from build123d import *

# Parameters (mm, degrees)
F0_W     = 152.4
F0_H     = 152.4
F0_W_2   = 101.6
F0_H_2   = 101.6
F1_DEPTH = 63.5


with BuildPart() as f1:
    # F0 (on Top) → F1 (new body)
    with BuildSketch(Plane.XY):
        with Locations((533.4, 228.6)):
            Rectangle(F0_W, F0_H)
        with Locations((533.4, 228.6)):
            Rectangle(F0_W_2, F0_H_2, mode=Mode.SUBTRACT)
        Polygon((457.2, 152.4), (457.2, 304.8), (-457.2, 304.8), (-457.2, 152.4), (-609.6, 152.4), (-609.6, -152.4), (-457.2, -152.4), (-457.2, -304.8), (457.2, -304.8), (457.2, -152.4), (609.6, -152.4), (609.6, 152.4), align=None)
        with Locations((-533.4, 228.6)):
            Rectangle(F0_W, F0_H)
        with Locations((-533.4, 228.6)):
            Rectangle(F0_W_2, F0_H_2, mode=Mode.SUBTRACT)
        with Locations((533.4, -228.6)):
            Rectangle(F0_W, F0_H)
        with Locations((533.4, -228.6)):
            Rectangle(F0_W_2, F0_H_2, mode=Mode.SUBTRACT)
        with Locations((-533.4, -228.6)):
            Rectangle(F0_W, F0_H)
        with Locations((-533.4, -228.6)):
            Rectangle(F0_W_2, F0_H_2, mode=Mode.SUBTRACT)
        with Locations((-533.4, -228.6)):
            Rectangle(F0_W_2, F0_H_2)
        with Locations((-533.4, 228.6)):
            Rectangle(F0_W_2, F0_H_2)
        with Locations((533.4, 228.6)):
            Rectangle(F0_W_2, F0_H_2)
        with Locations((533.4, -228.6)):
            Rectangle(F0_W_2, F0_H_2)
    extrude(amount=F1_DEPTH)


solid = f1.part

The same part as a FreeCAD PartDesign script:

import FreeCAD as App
import Part
import Sketcher
from FreeCAD import Vector
Q = App.Units.Quantity

doc = App.newDocument("Part")
params = doc.addObject("Spreadsheet::Sheet", "Params")
for row, (alias, value) in enumerate([
    ("sketch1_width", "48 in"),
    ("sketch1_height", "24 in"),
    ("pad1_length", "2.5 in"),
], start=1):
    params.set(f"A{row}", alias)
    params.set(f"B{row}", "=" + value)
    params.setAlias(f"B{row}", alias)

body = doc.addObject("PartDesign::Body", "Body")

# Sketch on XY plane
sketch1 = body.newObject("Sketcher::SketchObject", "Sketch")
sketch1.AttachmentSupport = (doc.getObject("XY_Plane"), [""])
sketch1.MapMode = "FlatFace"
sketch1.addGeometry([
    Part.LineSegment(Vector(610, 305, 0), Vector(-610, 305, 0)),
    Part.LineSegment(Vector(-610, 305, 0), Vector(-610, -305, 0)),
    Part.LineSegment(Vector(-610, -305, 0), Vector(610, -305, 0)),
    Part.LineSegment(Vector(610, -305, 0), Vector(610, 305, 0)),
], False)
sketch1.addConstraint([
    Sketcher.Constraint("Coincident", 0, 2, 1, 1),
    Sketcher.Constraint("Coincident", 1, 2, 2, 1),
    Sketcher.Constraint("Coincident", 2, 2, 3, 1),
    Sketcher.Constraint("Coincident", 3, 2, 0, 1),
    Sketcher.Constraint("Horizontal", 0),
    Sketcher.Constraint("Vertical", 1),
    Sketcher.Constraint("Horizontal", 2),
    Sketcher.Constraint("Vertical", 3),
    Sketcher.Constraint("Symmetric", 0, 2, 2, 2, -1, 1),
    Sketcher.Constraint("DistanceX", 0, 2, 0, 1, Q("48 in")),
    Sketcher.Constraint("DistanceY", 1, 2, 1, 1, Q("24 in")),
])
sketch1.setExpression("Constraints[9]", "Params.sketch1_width")
sketch1.setExpression("Constraints[10]", "Params.sketch1_height")
pad1 = body.newObject("PartDesign::Pad", "Pad")
pad1.Profile = sketch1
pad1.setExpression("Length", "Params.pad1_length")

doc.recompute()
